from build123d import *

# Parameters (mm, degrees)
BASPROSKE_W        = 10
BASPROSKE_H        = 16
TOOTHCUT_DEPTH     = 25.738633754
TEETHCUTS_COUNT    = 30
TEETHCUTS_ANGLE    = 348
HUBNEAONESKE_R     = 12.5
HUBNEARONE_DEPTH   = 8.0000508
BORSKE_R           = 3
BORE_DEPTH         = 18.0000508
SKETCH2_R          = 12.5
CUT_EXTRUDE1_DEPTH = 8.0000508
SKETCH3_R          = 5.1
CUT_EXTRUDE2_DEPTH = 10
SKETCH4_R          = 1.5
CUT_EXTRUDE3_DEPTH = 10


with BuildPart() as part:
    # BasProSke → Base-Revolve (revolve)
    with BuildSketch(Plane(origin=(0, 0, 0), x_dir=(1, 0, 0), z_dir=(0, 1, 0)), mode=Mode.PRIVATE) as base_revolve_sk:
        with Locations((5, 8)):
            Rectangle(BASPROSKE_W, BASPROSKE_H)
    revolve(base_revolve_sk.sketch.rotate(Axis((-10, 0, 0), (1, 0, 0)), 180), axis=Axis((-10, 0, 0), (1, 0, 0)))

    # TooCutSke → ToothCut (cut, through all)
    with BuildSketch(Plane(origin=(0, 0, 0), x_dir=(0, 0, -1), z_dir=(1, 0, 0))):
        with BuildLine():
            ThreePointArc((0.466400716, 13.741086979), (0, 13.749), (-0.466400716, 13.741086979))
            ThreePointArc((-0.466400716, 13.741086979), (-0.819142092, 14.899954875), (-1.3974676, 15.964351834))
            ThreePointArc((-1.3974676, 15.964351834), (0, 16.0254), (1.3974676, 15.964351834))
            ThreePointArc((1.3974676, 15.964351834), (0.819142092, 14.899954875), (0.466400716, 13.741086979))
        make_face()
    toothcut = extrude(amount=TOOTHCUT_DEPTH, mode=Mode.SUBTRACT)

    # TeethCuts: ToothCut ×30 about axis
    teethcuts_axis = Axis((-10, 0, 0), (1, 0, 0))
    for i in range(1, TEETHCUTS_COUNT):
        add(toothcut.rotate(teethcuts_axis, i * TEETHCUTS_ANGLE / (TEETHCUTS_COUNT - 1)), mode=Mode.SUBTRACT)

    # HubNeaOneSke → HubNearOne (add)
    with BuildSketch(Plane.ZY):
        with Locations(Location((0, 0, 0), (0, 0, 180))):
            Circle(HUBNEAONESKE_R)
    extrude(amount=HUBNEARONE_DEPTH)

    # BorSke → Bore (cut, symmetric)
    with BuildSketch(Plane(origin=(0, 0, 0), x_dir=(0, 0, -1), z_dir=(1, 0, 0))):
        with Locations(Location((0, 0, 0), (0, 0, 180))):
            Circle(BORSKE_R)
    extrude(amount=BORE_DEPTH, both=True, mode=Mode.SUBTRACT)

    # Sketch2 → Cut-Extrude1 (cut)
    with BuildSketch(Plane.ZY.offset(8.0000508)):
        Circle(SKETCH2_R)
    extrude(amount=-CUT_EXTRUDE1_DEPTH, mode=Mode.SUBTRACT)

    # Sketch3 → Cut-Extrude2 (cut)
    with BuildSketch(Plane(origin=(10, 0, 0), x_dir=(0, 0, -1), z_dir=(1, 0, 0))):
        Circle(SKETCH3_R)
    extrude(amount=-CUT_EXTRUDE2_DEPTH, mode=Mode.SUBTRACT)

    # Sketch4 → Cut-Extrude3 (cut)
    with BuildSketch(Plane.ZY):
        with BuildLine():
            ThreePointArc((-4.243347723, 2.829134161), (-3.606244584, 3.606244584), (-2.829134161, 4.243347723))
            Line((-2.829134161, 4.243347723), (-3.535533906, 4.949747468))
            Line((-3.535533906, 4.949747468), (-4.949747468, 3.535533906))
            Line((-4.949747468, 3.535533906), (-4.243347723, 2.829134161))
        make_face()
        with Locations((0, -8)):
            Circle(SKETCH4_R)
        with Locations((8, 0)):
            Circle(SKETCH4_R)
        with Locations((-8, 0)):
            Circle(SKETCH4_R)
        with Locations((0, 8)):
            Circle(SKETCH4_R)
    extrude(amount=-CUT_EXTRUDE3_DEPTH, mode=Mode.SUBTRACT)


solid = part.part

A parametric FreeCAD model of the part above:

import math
import FreeCAD as App
import Part
import Sketcher

V = App.Vector
Q = App.Units.Quantity

doc = App.newDocument("Part")
body = doc.addObject("PartDesign::Body", "Body")

# Sketch on XZ plane
sketch1 = body.newObject("Sketcher::SketchObject", "Sketch")
sketch1.AttachmentSupport = (doc.getObject("XZ_Plane"), [""])
sketch1.MapMode = "FlatFace"
sketch1.addGeometry(Part.LineSegment(V(0, -16, 0), V(0, 0, 0)), False)
sketch1.addGeometry(Part.LineSegment(V(0, 0, 0), V(10, 0, 0)), False)
sketch1.addGeometry(Part.LineSegment(V(10, 0, 0), V(10, -16, 0)), False)
sketch1.addGeometry(Part.LineSegment(V(10, -16, 0), V(0, -16, 0)), False)
sketch1.addConstraint(Sketcher.Constraint("Coincident", 0, 2, 1, 1))
sketch1.addConstraint(Sketcher.Constraint("Coincident", 1, 2, 2, 1))
sketch1.addConstraint(Sketcher.Constraint("Coincident", 2, 2, 3, 1))
sketch1.addConstraint(Sketcher.Constraint("Coincident", 3, 2, 0, 1))
sketch1.addConstraint(Sketcher.Constraint("Vertical", 0))
sketch1.addConstraint(Sketcher.Constraint("Horizontal", 1))
sketch1.addConstraint(Sketcher.Constraint("Vertical", 2))
sketch1.addConstraint(Sketcher.Constraint("Horizontal", 3))
sketch1.addConstraint(Sketcher.Constraint("Coincident", 0, 2, -1, 1))
sketch1.addConstraint(Sketcher.Constraint("DistanceX", 1, 1, 1, 2, Q("10 mm")))
sketch1.addConstraint(Sketcher.Constraint("DistanceY", 0, 1, 0, 2, Q("16 mm")))
revolution = body.newObject("PartDesign::Revolution", "Revolution")
revolution.Profile = sketch1
revolution.ReferenceAxis = (sketch1, ["H_Axis"])
revolution.Angle = 360

# Sketch on YZ plane
sketch2 = body.newObject("Sketcher::SketchObject", "Sketch001")
sketch2.AttachmentSupport = (doc.getObject("YZ_Plane"), [""])
sketch2.MapMode = "FlatFace"
sketch2.addGeometry(Part.ArcOfCircle(Part.Circle(V(0, 0, 0), V(0, 0, 1), 13.749), math.radians(-1.94399), math.radians(1.94399)), False)
sketch2.addGeometry(Part.ArcOfCircle(Part.Circle(V(12.582284, -6.353435, 0), V(0, 0, 1), 6), math.radians(55.689458), math.radians(78.864269)), False)
sketch2.addGeometry(Part.ArcOfCircle(Part.Circle(V(0, 0, 0), V(0, 0, 1), 16.0254), math.radians(-5.002735), math.radians(5.002735)), False)
sketch2.addGeometry(Part.ArcOfCircle(Part.Circle(V(12.582284, 6.353435, 0), V(0, 0, 1), 6), math.radians(-78.864269), math.radians(-55.689458)), False)
sketch2.addConstraint(Sketcher.Constraint("Coincident", 0, 1, 1, 2))
sketch2.addConstraint(Sketcher.Constraint("Coincident", 1, 1, 2, 1))
sketch2.addConstraint(Sketcher.Constraint("Coincident", 2, 2, 3, 2))
sketch2.addConstraint(Sketcher.Constraint("Coincident", 3, 1, 0, 2))
sketch2.addConstraint(Sketcher.Constraint("Coincident", 0, 3, -1, 1))
sketch2.addConstraint(Sketcher.Constraint("Coincident", 2, 3, -1, 1))
sketch2.addConstraint(Sketcher.Constraint("Equal", 1, 3))
sketch2.addConstraint(Sketcher.Constraint("Symmetric", 1, 3, 3, 3, -1))
sketch2.addConstraint(Sketcher.Constraint("Radius", 1, Q("6 mm")))
sketch2.addConstraint(Sketcher.Constraint("Radius", 0, Q("13.749 mm")))
sketch2.addConstraint(Sketcher.Constraint("Radius", 2, Q("16.0254 mm")))
sketch2.addConstraint(Sketcher.Constraint("DistanceY", 0, 1, -1, 1, Q("0.466401 mm")))
sketch2.addConstraint(Sketcher.Constraint("DistanceX", -1, 1, 1, 1, Q("15.964352 mm")))
pocket1 = body.newObject("PartDesign::Pocket", "Pocket")
pocket1.Profile = sketch2
pocket1.Type = "ThroughAll"
pocket1.Reversed = True
doc.recompute()

polarpattern = body.newObject("PartDesign::PolarPattern", "PolarPattern")
polarpattern.Originals = [pocket1]
polarpattern.Axis = (doc.getObject("X_Axis"), [""])
polarpattern.Angle = 360
polarpattern.Occurrences = 30
body.Tip = polarpattern

# Sketch on YZ plane
sketch3 = body.newObject("Sketcher::SketchObject", "Sketch002")
sketch3.AttachmentSupport = (doc.getObject("YZ_Plane"), [""])
sketch3.MapMode = "FlatFace"
sketch3.addGeometry(Part.Circle(V(0, 0, 0), V(0, 0, 1), 12.5), False)
sketch3.addConstraint(Sketcher.Constraint("Coincident", 0, 3, -1, 1))
sketch3.addConstraint(Sketcher.Constraint("Diameter", 0, Q("25 mm")))
pad1 = body.newObject("PartDesign::Pad", "Pad")
pad1.Profile = sketch3
pad1.Length = 8.000051
pad1.Reversed = True

# Sketch on YZ plane
sketch4 = body.newObject("Sketcher::SketchObject", "Sketch003")
sketch4.AttachmentSupport = (doc.getObject("YZ_Plane"), [""])
sketch4.MapMode = "FlatFace"
sketch4.addGeometry(Part.Circle(V(0, 0, 0), V(0, 0, 1), 3), False)
sketch4.addConstraint(Sketcher.Constraint("Coincident", 0, 3, -1, 1))
sketch4.addConstraint(Sketcher.Constraint("Diameter", 0, Q("6 mm")))
pocket2 = body.newObject("PartDesign::Pocket", "Pocket001")
pocket2.Profile = sketch4
pocket2.Length = 36.000102
pocket2.Midplane = True

# Sketch on YZ plane
sketch5 = body.newObject("Sketcher::SketchObject", "Sketch004")
sketch5.AttachmentSupport = (doc.getObject("YZ_Plane"), [""])
sketch5.MapMode = "FlatFace"
sketch5.AttachmentOffset = App.Placement(V(0, 0, -8.000051), App.Rotation())
sketch5.addGeometry(Part.Circle(V(0, 0, 0), V(0, 0, 1), 12.5), False)
sketch5.addConstraint(Sketcher.Constraint("Coincident", 0, 3, -1, 1))
sketch5.addConstraint(Sketcher.Constraint("Diameter", 0, Q("25 mm")))
pocket3 = body.newObject("PartDesign::Pocket", "Pocket002")
pocket3.Profile = sketch5
pocket3.Length = 8.000051
pocket3.Reversed = True

# Sketch on YZ plane
sketch6 = body.newObject("Sketcher::SketchObject", "Sketch005")
sketch6.AttachmentSupport = (doc.getObject("YZ_Plane"), [""])
sketch6.MapMode = "FlatFace"
sketch6.AttachmentOffset = App.Placement(V(0, 0, 10), App.Rotation())
sketch6.addGeometry(Part.Circle(V(0, 0, 0), V(0, 0, 1), 5.1), False)
sketch6.addConstraint(Sketcher.Constraint("Coincident", 0, 3, -1, 1))
sketch6.addConstraint(Sketcher.Constraint("Diameter", 0, Q("10.2 mm")))
pocket4 = body.newObject("PartDesign::Pocket", "Pocket003")
pocket4.Profile = sketch6
pocket4.Length = 10

# Sketch on YZ plane
sketch7 = body.newObject("Sketcher::SketchObject", "Sketch006")
sketch7.AttachmentSupport = (doc.getObject("YZ_Plane"), [""])
sketch7.MapMode = "FlatFace"
sketch7.addGeometry(Part.ArcOfCircle(Part.Circle(V(0, 0, 0), V(0, 0, 1), 5.1), math.radians(-56.307729), math.radians(-33.692271)), False)
sketch7.addGeometry(Part.LineSegment(V(4.243348, -2.829134, 0), V(4.949747, -3.535534, 0)), False)
sketch7.addGeometry(Part.LineSegment(V(4.949747, -3.535534, 0), V(3.535534, -4.949747, 0)), False)
sketch7.addGeometry(Part.LineSegment(V(3.535534, -4.949747, 0), V(2.829134, -4.243348, 0)), False)
sketch7.addGeometry(Part.Circle(V(-8, 0, 0), V(0, 0, 1), 1.5), False)
sketch7.addGeometry(Part.Circle(V(0, 8, 0), V(0, 0, 1), 1.5), False)
sketch7.addGeometry(Part.Circle(V(0, -8, 0), V(0, 0, 1), 1.5), False)
sketch7.addGeometry(Part.Circle(V(8, 0, 0), V(0, 0, 1), 1.5), False)
sketch7.addConstraint(Sketcher.Constraint("Coincident", 0, 2, 1, 1))
sketch7.addConstraint(Sketcher.Constraint("Coincident", 1, 2, 2, 1))
sketch7.addConstraint(Sketcher.Constraint("Coincident", 2, 2, 3, 1))
sketch7.addConstraint(Sketcher.Constraint("Coincident", 3, 2, 0, 1))
sketch7.addConstraint(Sketcher.Constraint("Coincident", 0, 3, -1, 1))
sketch7.addConstraint(Sketcher.Constraint("Equal", 4, 5))
sketch7.addConstraint(Sketcher.Constraint("Equal", 5, 6))
sketch7.addConstraint(Sketcher.Constraint("Equal", 6, 7))
sketch7.addConstraint(Sketcher.Constraint("Symmetric", 5, 3, 6, 3, -1, 1))
sketch7.addConstraint(Sketcher.Constraint("Symmetric", 4, 3, 7, 3, -1, 1))
sketch7.addConstraint(Sketcher.Constraint("PointOnObject", 4, 3, -1))
sketch7.addConstraint(Sketcher.Constraint("PointOnObject", 5, 3, -2))
sketch7.addConstraint(Sketcher.Constraint("Perpendicular", 1, 2))
sketch7.addConstraint(Sketcher.Constraint("Perpendicular", 2, 3))
sketch7.addConstraint(Sketcher.Constraint("Equal", 1, 3))
sketch7.addConstraint(Sketcher.Constraint("Diameter", 4, Q("3 mm")))
sketch7.addConstraint(Sketcher.Constraint("Radius", 0, Q("5.1 mm")))
sketch7.addConstraint(Sketcher.Constraint("Angle", 1, Q("-45 deg")))
sketch7.addConstraint(Sketcher.Constraint("Distance", 2, Q("2 mm")))
sketch7.addConstraint(Sketcher.Constraint("DistanceX", 4, 3, -1, 1, Q("8 mm")))
sketch7.addConstraint(Sketcher.Constraint("DistanceY", -1, 1, 5, 3, Q("8 mm")))
sketch7.addConstraint(Sketcher.Constraint("Distance", 1, Q("0.999 mm")))
pocket5 = body.newObject("PartDesign::Pocket", "Pocket004")
pocket5.Profile = sketch7
pocket5.Length = 10
pocket5.Reversed = True

doc.recompute()
